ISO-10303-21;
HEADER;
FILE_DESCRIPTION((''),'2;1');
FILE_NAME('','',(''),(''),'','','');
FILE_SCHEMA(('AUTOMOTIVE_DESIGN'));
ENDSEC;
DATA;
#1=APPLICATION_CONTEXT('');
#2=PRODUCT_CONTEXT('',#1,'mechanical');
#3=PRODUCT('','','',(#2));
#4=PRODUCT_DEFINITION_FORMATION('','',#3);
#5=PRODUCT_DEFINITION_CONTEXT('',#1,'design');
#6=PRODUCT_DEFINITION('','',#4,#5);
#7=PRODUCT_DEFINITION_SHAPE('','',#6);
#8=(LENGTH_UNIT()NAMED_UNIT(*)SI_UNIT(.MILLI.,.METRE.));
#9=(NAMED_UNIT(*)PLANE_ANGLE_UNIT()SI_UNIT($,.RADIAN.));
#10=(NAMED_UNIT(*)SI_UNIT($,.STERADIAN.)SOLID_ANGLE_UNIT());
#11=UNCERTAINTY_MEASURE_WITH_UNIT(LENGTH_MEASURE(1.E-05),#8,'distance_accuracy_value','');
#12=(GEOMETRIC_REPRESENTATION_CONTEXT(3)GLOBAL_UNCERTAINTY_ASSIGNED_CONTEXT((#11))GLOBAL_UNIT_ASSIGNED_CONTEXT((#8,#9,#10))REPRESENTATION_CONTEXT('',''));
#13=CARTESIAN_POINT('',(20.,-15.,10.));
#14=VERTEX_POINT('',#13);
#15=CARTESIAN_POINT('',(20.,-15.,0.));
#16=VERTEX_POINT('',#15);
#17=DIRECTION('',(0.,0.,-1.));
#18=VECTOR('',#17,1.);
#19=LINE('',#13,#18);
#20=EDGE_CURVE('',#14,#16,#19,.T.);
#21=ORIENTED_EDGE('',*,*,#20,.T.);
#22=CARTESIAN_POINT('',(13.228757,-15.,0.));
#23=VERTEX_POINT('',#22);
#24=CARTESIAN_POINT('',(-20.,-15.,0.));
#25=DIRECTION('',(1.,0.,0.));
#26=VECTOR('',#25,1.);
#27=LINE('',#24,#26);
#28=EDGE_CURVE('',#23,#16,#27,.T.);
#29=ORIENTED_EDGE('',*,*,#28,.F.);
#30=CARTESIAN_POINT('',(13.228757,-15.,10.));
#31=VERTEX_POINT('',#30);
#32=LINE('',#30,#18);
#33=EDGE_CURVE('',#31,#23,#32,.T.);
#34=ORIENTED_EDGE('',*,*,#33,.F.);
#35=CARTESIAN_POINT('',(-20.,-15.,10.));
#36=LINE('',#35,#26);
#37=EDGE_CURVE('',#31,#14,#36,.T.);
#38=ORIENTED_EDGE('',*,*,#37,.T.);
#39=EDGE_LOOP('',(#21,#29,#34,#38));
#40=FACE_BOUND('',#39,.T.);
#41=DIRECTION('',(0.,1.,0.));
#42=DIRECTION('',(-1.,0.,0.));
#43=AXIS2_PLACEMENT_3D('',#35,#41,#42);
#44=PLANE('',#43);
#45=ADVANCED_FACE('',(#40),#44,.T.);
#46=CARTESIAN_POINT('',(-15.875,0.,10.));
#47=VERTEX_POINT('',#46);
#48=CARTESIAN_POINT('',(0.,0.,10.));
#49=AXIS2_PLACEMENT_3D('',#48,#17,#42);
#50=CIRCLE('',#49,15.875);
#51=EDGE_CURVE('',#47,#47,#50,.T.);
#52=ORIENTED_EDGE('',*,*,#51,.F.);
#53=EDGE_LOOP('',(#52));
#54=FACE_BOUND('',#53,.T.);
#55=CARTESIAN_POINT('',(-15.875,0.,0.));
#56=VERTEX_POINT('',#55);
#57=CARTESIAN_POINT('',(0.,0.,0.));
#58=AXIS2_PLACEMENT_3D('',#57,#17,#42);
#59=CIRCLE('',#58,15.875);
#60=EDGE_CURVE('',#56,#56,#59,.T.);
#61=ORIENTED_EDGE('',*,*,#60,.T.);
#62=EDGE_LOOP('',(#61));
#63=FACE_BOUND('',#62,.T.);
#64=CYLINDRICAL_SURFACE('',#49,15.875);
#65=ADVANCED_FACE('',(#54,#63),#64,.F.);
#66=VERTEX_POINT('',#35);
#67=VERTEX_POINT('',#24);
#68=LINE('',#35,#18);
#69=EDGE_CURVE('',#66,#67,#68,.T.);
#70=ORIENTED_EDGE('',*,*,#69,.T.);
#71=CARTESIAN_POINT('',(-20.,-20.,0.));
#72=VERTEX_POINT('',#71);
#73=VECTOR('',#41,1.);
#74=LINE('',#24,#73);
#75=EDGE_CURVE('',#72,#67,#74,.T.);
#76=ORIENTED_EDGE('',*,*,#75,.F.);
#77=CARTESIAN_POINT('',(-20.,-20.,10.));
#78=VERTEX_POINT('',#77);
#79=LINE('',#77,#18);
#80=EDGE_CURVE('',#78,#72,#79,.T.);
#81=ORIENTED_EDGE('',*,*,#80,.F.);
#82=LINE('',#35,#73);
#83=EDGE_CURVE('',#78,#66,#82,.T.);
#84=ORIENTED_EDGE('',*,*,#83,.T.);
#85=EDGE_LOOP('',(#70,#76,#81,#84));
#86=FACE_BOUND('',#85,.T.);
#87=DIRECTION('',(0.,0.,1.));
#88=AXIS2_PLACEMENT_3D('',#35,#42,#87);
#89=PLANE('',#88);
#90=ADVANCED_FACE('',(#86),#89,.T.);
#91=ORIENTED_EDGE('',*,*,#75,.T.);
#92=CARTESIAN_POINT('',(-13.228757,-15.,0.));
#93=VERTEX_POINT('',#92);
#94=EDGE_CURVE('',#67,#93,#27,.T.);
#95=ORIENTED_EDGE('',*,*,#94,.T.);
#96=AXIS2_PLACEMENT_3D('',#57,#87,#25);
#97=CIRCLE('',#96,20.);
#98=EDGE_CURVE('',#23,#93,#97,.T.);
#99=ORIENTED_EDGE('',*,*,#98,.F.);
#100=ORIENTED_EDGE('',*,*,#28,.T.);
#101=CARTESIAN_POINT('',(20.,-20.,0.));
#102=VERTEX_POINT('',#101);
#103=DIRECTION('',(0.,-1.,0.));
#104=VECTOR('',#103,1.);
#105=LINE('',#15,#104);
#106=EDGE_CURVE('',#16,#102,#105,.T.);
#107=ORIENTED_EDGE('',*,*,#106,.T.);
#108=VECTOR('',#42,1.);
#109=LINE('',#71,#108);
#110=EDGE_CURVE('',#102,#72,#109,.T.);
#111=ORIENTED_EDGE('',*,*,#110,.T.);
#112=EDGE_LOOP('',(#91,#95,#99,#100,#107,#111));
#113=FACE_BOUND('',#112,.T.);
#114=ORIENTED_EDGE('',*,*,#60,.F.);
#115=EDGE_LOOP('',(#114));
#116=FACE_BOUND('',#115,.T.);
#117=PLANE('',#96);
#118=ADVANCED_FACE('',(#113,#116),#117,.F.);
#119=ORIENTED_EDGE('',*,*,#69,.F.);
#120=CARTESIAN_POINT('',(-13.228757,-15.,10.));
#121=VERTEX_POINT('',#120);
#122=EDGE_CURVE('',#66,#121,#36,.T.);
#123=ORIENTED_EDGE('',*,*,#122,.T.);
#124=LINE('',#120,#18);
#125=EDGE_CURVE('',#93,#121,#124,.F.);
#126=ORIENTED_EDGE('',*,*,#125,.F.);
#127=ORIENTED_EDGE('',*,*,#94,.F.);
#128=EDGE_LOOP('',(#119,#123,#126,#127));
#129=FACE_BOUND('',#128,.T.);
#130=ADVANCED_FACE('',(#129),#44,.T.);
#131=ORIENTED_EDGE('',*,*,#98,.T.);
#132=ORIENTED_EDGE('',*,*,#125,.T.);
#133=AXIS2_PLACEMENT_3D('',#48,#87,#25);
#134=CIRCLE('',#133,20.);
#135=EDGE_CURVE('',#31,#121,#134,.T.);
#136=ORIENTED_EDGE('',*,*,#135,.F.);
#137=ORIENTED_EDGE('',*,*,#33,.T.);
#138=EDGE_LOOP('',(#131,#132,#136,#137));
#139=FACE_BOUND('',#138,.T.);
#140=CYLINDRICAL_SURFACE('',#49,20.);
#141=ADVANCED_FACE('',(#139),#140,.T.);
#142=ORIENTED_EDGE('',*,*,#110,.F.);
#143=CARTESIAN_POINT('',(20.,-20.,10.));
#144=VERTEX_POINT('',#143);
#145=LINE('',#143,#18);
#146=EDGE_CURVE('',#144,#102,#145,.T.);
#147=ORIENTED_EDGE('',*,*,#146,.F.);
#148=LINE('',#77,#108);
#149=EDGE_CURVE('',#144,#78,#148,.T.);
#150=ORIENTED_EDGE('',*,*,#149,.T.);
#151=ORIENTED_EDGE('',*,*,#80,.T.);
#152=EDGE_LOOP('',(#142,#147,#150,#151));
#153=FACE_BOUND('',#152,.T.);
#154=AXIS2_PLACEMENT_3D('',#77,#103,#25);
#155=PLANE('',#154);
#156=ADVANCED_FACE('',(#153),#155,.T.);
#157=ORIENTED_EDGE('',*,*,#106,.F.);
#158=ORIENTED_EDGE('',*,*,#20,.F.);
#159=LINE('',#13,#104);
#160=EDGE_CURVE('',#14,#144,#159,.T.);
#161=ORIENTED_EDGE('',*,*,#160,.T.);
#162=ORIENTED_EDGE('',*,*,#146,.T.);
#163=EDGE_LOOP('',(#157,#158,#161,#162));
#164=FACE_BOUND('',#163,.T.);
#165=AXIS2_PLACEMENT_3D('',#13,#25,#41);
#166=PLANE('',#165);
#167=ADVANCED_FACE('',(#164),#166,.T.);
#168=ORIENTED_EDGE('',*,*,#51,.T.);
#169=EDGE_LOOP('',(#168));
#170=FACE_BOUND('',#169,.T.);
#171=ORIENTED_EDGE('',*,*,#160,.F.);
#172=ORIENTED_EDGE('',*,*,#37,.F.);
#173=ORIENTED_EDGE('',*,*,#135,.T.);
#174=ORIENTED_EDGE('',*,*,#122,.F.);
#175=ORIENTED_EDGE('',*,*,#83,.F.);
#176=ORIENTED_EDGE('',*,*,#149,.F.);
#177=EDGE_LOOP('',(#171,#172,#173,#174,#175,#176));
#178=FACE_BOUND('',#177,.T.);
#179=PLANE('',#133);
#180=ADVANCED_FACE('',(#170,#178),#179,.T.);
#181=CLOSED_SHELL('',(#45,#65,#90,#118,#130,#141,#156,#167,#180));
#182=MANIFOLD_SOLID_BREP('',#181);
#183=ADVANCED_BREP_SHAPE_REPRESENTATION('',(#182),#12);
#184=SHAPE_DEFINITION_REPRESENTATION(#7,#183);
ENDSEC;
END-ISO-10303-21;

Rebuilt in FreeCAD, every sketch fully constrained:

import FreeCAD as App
import Part
import Sketcher


def add_polygon(sketch, points):
    """Adds a closed chain of lines whose ends are joined by coincident constraints."""
    first, n = sketch.GeometryCount, len(points)
    for a, b in zip(points, points[1:] + points[:1]):
        sketch.addGeometry(Part.LineSegment(App.Vector(*a, 0), App.Vector(*b, 0)), False)
    for i in range(n):
        sketch.addConstraint(Sketcher.Constraint("Coincident", first + i, 2, first + (i + 1) % n, 1))

doc = App.newDocument("Part")
body = doc.addObject("PartDesign::Body", "Body")

# Sketch on XY plane
sketch1 = doc.addObject("Sketcher::SketchObject", "Sketch")
body.addObject(sketch1)
sketch1.AttachmentSupport = (doc.XY_Plane, [""])
sketch1.MapMode = "FlatFace"
sketch1.addGeometry(Part.Circle(App.Vector(0, 0, 0), App.Vector(0, 0, 1), 20), False)
sketch1.addConstraint([
    Sketcher.Constraint("Coincident", 0, 3, -1, 1),
    Sketcher.Constraint("Diameter", 0, 40.0),
])
pad1 = doc.addObject("PartDesign::Pad", "Pad")
body.addObject(pad1)
pad1.Profile = sketch1
pad1.Length = 10

# Sketch on XY plane
sketch2 = doc.addObject("Sketcher::SketchObject", "Sketch001")
body.addObject(sketch2)
sketch2.AttachmentSupport = (doc.XY_Plane, [""])
sketch2.MapMode = "FlatFace"
add_polygon(sketch2, [(20, -15), (20, -20), (-20, -20), (-20, -15)])  # lines 0-3
sketch2.addConstraint([
    Sketcher.Constraint("Vertical", 0),
    Sketcher.Constraint("Horizontal", 1),
    Sketcher.Constraint("Vertical", 2),
    Sketcher.Constraint("Horizontal", 3),
    Sketcher.Constraint("DistanceX", 1, 2, 1, 1, 40.0),
    Sketcher.Constraint("DistanceY", 0, 2, 0, 1, 5.0),
    Sketcher.Constraint("DistanceX", -1, 1, 0, 2, 20.0),
    Sketcher.Constraint("DistanceY", 0, 2, -1, 1, 20.0),
])
pad2 = doc.addObject("PartDesign::Pad", "Pad001")
body.addObject(pad2)
pad2.Profile = sketch2
pad2.Length = 10

# Sketch on XY plane
sketch3 = doc.addObject("Sketcher::SketchObject", "Sketch002")
body.addObject(sketch3)
sketch3.AttachmentSupport = (doc.XY_Plane, [""])
sketch3.MapMode = "FlatFace"
sketch3.addGeometry(Part.Circle(App.Vector(0, 0, 0), App.Vector(0, 0, 1), 15.875), False)
sketch3.addConstraint([
    Sketcher.Constraint("Coincident", 0, 3, -1, 1),
    Sketcher.Constraint("Diameter", 0, 31.75),
])
pocket1 = doc.addObject("PartDesign::Pocket", "Pocket")
body.addObject(pocket1)
pocket1.Profile = sketch3
pocket1.Type = "ThroughAll"
pocket1.Reversed = True

doc.recompute()
